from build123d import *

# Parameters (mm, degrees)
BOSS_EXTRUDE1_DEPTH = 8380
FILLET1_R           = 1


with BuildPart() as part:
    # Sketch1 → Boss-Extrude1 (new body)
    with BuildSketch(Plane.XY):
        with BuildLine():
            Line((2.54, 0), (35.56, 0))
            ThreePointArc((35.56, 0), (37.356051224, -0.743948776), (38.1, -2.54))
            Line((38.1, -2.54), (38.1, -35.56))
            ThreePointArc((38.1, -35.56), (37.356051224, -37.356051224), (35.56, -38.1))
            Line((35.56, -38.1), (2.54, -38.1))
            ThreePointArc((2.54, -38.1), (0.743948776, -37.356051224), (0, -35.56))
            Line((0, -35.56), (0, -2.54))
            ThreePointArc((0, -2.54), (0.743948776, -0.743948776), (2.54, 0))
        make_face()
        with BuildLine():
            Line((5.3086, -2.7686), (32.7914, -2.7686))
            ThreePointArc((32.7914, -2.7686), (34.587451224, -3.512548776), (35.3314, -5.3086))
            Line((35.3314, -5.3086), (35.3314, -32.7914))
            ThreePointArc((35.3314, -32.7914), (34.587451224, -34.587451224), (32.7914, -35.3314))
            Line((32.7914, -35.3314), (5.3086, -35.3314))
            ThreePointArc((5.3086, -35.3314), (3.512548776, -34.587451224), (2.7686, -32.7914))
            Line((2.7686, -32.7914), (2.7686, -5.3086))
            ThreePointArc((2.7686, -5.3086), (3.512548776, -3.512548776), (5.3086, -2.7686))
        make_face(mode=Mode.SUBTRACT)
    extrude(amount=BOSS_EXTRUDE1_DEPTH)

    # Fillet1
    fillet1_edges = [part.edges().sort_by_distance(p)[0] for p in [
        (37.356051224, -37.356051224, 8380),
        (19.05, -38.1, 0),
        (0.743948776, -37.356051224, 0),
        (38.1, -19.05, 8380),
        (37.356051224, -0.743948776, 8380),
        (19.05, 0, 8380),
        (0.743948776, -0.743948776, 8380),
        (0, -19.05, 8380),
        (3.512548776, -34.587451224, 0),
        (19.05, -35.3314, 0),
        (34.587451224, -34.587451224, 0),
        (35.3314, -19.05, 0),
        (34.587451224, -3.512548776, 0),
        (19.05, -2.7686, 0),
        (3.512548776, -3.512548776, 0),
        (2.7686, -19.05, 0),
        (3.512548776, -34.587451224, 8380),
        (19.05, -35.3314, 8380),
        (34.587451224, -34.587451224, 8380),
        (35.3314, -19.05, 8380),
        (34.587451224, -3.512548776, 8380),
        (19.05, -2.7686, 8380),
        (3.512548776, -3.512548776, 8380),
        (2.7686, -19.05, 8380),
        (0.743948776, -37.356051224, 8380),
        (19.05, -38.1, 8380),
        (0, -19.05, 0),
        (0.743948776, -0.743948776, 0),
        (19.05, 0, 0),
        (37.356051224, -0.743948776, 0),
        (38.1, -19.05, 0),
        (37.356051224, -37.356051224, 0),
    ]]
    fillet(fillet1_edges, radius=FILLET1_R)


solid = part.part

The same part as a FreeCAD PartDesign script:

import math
import FreeCAD as App
import Part
import Sketcher
from FreeCAD import Vector
Q = App.Units.Quantity


def edges_at(feature, points):
    """Names of the edges that pass closest to the given points."""
    edges = feature.Shape.Edges
    near = lambda p: min(range(len(edges)), key=lambda i: edges[i].distToShape(Part.Vertex(*p))[0])
    return sorted({f"Edge{near(p) + 1}" for p in points})

doc = App.newDocument("Part")
body = doc.addObject("PartDesign::Body", "Body")

sketch1 = body.newObject("Sketcher::SketchObject", "Sketch")
sketch1.AttachmentSupport = (doc.getObject("XY_Plane"), [""])
sketch1.MapMode = "FlatFace"
sketch1.addGeometry([
    Part.LineSegment(Vector(35.56, 0, 0), Vector(2.54, 0, 0)),
    Part.ArcOfCircle(Part.Circle(Vector(2.54, -2.54, 0), Vector(0, 0, 1), 2.54), math.radians(90), math.radians(180)),
    Part.LineSegment(Vector(0, -2.54, 0), Vector(0, -35.56, 0)),
    Part.ArcOfCircle(Part.Circle(Vector(2.54, -35.56, 0), Vector(0, 0, 1), 2.54), math.radians(-180), math.radians(-90)),
    Part.LineSegment(Vector(2.54, -38.1, 0), Vector(35.56, -38.1, 0)),
    Part.ArcOfCircle(Part.Circle(Vector(35.56, -35.56, 0), Vector(0, 0, 1), 2.54), math.radians(-90), math.radians(0)),
    Part.LineSegment(Vector(38.1, -35.56, 0), Vector(38.1, -2.54, 0)),
    Part.ArcOfCircle(Part.Circle(Vector(35.56, -2.54, 0), Vector(0, 0, 1), 2.54), math.radians(0), math.radians(90)),
    Part.LineSegment(Vector(5.3086, -2.7686, 0), Vector(32.7914, -2.7686, 0)),
    Part.ArcOfCircle(Part.Circle(Vector(32.7914, -5.3086, 0), Vector(0, 0, 1), 2.54), math.radians(0), math.radians(90)),
    Part.LineSegment(Vector(35.3314, -5.3086, 0), Vector(35.3314, -32.7914, 0)),
    Part.ArcOfCircle(Part.Circle(Vector(32.7914, -32.7914, 0), Vector(0, 0, 1), 2.54), math.radians(-90), math.radians(0)),
    Part.LineSegment(Vector(32.7914, -35.3314, 0), Vector(5.3086, -35.3314, 0)),
    Part.ArcOfCircle(Part.Circle(Vector(5.3086, -32.7914, 0), Vector(0, 0, 1), 2.54), math.radians(-180), math.radians(-90)),
    Part.LineSegment(Vector(2.7686, -32.7914, 0), Vector(2.7686, -5.3086, 0)),
    Part.ArcOfCircle(Part.Circle(Vector(5.3086, -5.3086, 0), Vector(0, 0, 1), 2.54), math.radians(90), math.radians(180)),
], False)
sketch1.addConstraint([
    Sketcher.Constraint("Tangent", 0, 2, 1, 1),
    Sketcher.Constraint("Tangent", 1, 2, 2, 1),
    Sketcher.Constraint("Tangent", 2, 2, 3, 1),
    Sketcher.Constraint("Tangent", 3, 2, 4, 1),
    Sketcher.Constraint("Tangent", 4, 2, 5, 1),
    Sketcher.Constraint("Tangent", 5, 2, 6, 1),
    Sketcher.Constraint("Tangent", 6, 2, 7, 1),
    Sketcher.Constraint("Tangent", 7, 2, 0, 1),
    Sketcher.Constraint("Tangent", 8, 2, 9, 2),
    Sketcher.Constraint("Tangent", 9, 1, 10, 1),
    Sketcher.Constraint("Tangent", 10, 2, 11, 2),
    Sketcher.Constraint("Tangent", 11, 1, 12, 1),
    Sketcher.Constraint("Tangent", 12, 2, 13, 2),
    Sketcher.Constraint("Tangent", 13, 1, 14, 1),
    Sketcher.Constraint("Tangent", 14, 2, 15, 2),
    Sketcher.Constraint("Tangent", 15, 1, 8, 1),
    Sketcher.Constraint("Horizontal", 0),
    Sketcher.Constraint("Vertical", 2),
    Sketcher.Constraint("Horizontal", 4),
    Sketcher.Constraint("Vertical", 6),
    Sketcher.Constraint("Horizontal", 8),
    Sketcher.Constraint("Vertical", 10),
    Sketcher.Constraint("Horizontal", 12),
    Sketcher.Constraint("Vertical", 14),
    Sketcher.Constraint("Equal", 1, 3),
    Sketcher.Constraint("Equal", 3, 5),
    Sketcher.Constraint("Equal", 5, 7),
    Sketcher.Constraint("Equal", 7, 9),
    Sketcher.Constraint("Equal", 9, 11),
    Sketcher.Constraint("Equal", 11, 13),
    Sketcher.Constraint("Equal", 13, 15),
    Sketcher.Constraint("PointOnObject", 0, 2, -1),
    Sketcher.Constraint("PointOnObject", 1, 2, -2),
    Sketcher.Constraint("Equal", 4, 2),
    Sketcher.Constraint("Equal", 12, 10),
    Sketcher.Constraint("Radius", 1, Q("0.1 in")),
    Sketcher.Constraint("DistanceX", 0, 2, 0, 1, Q("1.3 in")),
    Sketcher.Constraint("DistanceX", 8, 1, 8, 2, Q("1.082 in")),
    Sketcher.Constraint("DistanceX", -1, 1, 9, 3, Q("1.291 in")),
    Sketcher.Constraint("DistanceY", 9, 3, -1, 1, Q("0.209 in")),
])
pad1 = body.newObject("PartDesign::Pad", "Pad")
pad1.Profile = sketch1
pad1.Length = 8380
doc.recompute()

fillet = body.newObject("PartDesign::Fillet", "Fillet")
fillet.Base = (pad1, edges_at(pad1, [
    (37.356, -37.356, 8380),
    (19.05, -38.1, 0),
    (0.744, -37.356, 0),
    (38.1, -19.05, 8380),
    (37.356, -0.744, 8380),
    (19.05, 0, 8380),
    (0.744, -0.744, 8380),
    (0, -19.05, 8380),
    (3.513, -34.587, 0),
    (19.05, -35.331, 0),
    (34.587, -34.587, 0),
    (35.331, -19.05, 0),
    (34.587, -3.513, 0),
    (19.05, -2.769, 0),
    (3.513, -3.513, 0),
    (2.769, -19.05, 0),
    (3.513, -34.587, 8380),
    (19.05, -35.331, 8380),
    (34.587, -34.587, 8380),
    (35.331, -19.05, 8380),
    (34.587, -3.513, 8380),
    (19.05, -2.769, 8380),
    (3.513, -3.513, 8380),
    (2.769, -19.05, 8380),
    (0.744, -37.356, 8380),
    (19.05, -38.1, 8380),
    (0, -19.05, 0),
    (0.744, -0.744, 0),
    (19.05, 0, 0),
    (37.356, -0.744, 0),
    (38.1, -19.05, 0),
    (37.356, -37.356, 0),
]))
fillet.Radius = 1

doc.recompute()
